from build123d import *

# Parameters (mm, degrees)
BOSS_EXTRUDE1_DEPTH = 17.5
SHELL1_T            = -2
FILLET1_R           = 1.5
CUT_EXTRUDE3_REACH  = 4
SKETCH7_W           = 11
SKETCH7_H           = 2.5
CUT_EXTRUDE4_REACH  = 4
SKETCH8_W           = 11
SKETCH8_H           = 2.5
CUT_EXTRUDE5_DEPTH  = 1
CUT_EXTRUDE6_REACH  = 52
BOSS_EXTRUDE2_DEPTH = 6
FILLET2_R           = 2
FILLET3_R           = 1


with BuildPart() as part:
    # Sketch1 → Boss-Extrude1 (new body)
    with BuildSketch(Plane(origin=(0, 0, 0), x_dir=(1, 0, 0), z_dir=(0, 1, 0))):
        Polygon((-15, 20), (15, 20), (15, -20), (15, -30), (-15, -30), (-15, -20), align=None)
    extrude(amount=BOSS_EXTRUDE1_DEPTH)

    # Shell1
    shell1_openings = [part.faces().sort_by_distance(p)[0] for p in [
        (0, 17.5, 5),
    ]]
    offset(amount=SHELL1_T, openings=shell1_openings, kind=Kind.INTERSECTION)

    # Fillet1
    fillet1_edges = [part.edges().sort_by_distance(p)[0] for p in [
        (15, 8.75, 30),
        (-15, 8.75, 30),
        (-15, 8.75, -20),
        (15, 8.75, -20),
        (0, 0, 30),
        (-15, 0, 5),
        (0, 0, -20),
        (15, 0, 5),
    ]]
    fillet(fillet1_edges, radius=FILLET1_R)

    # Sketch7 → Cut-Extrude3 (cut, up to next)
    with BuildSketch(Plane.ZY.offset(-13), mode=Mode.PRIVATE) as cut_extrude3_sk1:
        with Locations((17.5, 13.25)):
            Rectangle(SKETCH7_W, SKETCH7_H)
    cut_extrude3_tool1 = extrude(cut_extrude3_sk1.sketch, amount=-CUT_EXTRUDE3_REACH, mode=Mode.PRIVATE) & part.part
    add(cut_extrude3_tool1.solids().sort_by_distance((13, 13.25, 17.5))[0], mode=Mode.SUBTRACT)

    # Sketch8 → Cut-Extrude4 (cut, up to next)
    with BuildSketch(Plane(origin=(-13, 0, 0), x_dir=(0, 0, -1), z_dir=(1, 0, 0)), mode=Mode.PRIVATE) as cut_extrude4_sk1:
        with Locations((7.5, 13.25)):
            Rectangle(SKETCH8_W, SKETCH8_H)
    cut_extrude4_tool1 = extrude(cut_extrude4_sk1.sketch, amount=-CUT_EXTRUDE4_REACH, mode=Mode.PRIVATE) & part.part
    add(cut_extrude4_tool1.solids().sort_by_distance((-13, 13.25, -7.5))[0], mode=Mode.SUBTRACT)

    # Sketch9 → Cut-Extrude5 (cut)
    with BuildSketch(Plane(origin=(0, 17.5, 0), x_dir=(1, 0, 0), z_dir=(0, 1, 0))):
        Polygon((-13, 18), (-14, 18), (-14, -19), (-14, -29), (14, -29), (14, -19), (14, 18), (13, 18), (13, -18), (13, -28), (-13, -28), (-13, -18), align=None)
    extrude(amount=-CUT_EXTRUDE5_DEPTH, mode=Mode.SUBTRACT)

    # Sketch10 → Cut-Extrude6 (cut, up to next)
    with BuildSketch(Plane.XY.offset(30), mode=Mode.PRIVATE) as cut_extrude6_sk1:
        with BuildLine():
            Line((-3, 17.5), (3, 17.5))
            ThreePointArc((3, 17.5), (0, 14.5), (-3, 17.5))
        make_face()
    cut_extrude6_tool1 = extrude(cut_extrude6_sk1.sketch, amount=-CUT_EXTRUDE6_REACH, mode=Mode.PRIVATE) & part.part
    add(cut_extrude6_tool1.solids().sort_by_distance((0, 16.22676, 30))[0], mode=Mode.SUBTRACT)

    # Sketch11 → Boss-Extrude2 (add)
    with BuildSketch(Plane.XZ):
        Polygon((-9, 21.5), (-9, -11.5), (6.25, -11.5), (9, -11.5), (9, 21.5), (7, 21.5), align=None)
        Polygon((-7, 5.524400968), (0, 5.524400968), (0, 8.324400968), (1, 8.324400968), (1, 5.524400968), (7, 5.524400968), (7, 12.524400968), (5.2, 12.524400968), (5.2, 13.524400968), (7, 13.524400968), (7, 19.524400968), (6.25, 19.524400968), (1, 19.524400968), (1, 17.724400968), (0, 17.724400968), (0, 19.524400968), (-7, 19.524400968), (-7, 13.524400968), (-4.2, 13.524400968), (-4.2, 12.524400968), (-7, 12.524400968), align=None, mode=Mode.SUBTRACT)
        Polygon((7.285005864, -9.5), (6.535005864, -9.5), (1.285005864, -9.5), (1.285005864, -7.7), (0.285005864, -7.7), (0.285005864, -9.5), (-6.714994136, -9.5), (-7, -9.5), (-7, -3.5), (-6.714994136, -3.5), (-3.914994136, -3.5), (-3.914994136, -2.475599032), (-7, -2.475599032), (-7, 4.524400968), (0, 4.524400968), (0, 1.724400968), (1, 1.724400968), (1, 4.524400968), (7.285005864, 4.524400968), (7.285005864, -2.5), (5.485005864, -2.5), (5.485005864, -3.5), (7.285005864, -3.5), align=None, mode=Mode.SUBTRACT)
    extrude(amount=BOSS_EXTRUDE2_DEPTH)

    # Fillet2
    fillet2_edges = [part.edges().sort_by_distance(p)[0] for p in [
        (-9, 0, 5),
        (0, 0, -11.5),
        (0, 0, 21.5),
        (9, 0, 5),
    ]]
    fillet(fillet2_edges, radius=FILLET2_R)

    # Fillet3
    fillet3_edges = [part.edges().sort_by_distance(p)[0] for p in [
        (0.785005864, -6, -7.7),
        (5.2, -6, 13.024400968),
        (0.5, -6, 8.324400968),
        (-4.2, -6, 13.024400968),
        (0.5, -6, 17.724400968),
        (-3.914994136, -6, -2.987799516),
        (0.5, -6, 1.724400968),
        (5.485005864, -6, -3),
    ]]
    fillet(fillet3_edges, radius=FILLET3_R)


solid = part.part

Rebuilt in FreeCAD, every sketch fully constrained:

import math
import FreeCAD as App
import Part
import Sketcher
from FreeCAD import Vector
Q = App.Units.Quantity


def edges_at(feature, points):
    """Names of the edges that pass closest to the given points."""
    edges = feature.Shape.Edges
    near = lambda p: min(range(len(edges)), key=lambda i: edges[i].distToShape(Part.Vertex(*p))[0])
    return sorted({f"Edge{near(p) + 1}" for p in points})


def faces_at(feature, points):
    """Names of the faces that lie closest to the given points."""
    faces = feature.Shape.Faces
    near = lambda p: min(range(len(faces)), key=lambda i: faces[i].distToShape(Part.Vertex(*p))[0])
    return sorted({f"Face{near(p) + 1}" for p in points})


def add_polygon(sketch, points):
    """Adds a closed chain of lines whose ends are joined by coincident constraints."""
    first, n = sketch.GeometryCount, len(points)
    for a, b in zip(points, points[1:] + points[:1]):
        sketch.addGeometry(Part.LineSegment(App.Vector(*a, 0), App.Vector(*b, 0)), False)
    for i in range(n):
        sketch.addConstraint(Sketcher.Constraint("Coincident", first + i, 2, first + (i + 1) % n, 1))

doc = App.newDocument("Part")
body = doc.addObject("PartDesign::Body", "Body")

# Sketch on XZ plane
sketch1 = body.newObject("Sketcher::SketchObject", "Sketch")
sketch1.AttachmentSupport = (doc.getObject("XZ_Plane"), [""])
sketch1.MapMode = "FlatFace"
add_polygon(sketch1, [(15, -20), (-15, -20), (-15, 30), (15, 30)])  # lines 0-3
sketch1.addConstraint(Sketcher.Constraint("Horizontal", 0))
sketch1.addConstraint(Sketcher.Constraint("Vertical", 1))
sketch1.addConstraint(Sketcher.Constraint("Horizontal", 2))
sketch1.addConstraint(Sketcher.Constraint("Vertical", 3))
sketch1.addConstraint(Sketcher.Constraint("DistanceX", 0, 2, 0, 1, Q("30 mm")))
sketch1.addConstraint(Sketcher.Constraint("DistanceY", 1, 1, 1, 2, Q("50 mm")))
sketch1.addConstraint(Sketcher.Constraint("DistanceX", 0, 2, -1, 1, Q("15 mm")))
sketch1.addConstraint(Sketcher.Constraint("DistanceY", 0, 2, -1, 1, Q("20 mm")))
pad1 = body.newObject("PartDesign::Pad", "Pad")
pad1.Profile = sketch1
pad1.Length = 17.5
pad1.Reversed = True
doc.recompute()

thickness = body.newObject("PartDesign::Thickness", "Thickness")
thickness.Base = (pad1, faces_at(pad1, [(0, 17.5, 5)]))
thickness.Value = 2
thickness.Reversed = True
thickness.Join = "Intersection"
doc.recompute()

fillet = body.newObject("PartDesign::Fillet", "Fillet")
fillet.Base = (thickness, edges_at(thickness, [
    (15, 8.75, 30),
    (-15, 8.75, 30),
    (-15, 8.75, -20),
    (15, 8.75, -20),
    (0, 0, 30),
    (-15, 0, 5),
    (0, 0, -20),
    (15, 0, 5),
]))
fillet.Radius = 1.5

# Sketch on YZ plane
sketch2 = body.newObject("Sketcher::SketchObject", "Sketch001")
sketch2.AttachmentSupport = (doc.getObject("YZ_Plane"), [""])
sketch2.MapMode = "FlatFace"
sketch2.AttachmentOffset = App.Placement(Vector(0, 0, 13), App.Rotation())
add_polygon(sketch2, [(14.5, 12), (12, 12), (12, 23), (14.5, 23)])  # lines 0-3
sketch2.addConstraint(Sketcher.Constraint("Horizontal", 0))
sketch2.addConstraint(Sketcher.Constraint("Vertical", 1))
sketch2.addConstraint(Sketcher.Constraint("Horizontal", 2))
sketch2.addConstraint(Sketcher.Constraint("Vertical", 3))
sketch2.addConstraint(Sketcher.Constraint("DistanceY", 1, 1, 1, 2, Q("11 mm")))
sketch2.addConstraint(Sketcher.Constraint("DistanceX", 0, 2, 0, 1, Q("2.5 mm")))
sketch2.addConstraint(Sketcher.Constraint("DistanceX", -1, 1, 0, 2, Q("12 mm")))
sketch2.addConstraint(Sketcher.Constraint("DistanceY", -1, 1, 0, 2, Q("12 mm")))
pocket1 = body.newObject("PartDesign::Pocket", "Pocket")
pocket1.Profile = sketch2
pocket1.Type = "UpToFirst"
pocket1.Reversed = True

# Sketch on YZ plane
sketch3 = body.newObject("Sketcher::SketchObject", "Sketch002")
sketch3.AttachmentSupport = (doc.getObject("YZ_Plane"), [""])
sketch3.MapMode = "FlatFace"
sketch3.AttachmentOffset = App.Placement(Vector(0, 0, -13), App.Rotation())
add_polygon(sketch3, [(14.5, -2), (12, -2), (12, -13), (14.5, -13)])  # lines 0-3
sketch3.addConstraint(Sketcher.Constraint("Horizontal", 0))
sketch3.addConstraint(Sketcher.Constraint("Vertical", 1))
sketch3.addConstraint(Sketcher.Constraint("Horizontal", 2))
sketch3.addConstraint(Sketcher.Constraint("Vertical", 3))
sketch3.addConstraint(Sketcher.Constraint("DistanceY", 1, 2, 1, 1, Q("11 mm")))
sketch3.addConstraint(Sketcher.Constraint("DistanceX", 0, 2, 0, 1, Q("2.5 mm")))
sketch3.addConstraint(Sketcher.Constraint("DistanceX", -1, 1, 0, 2, Q("12 mm")))
sketch3.addConstraint(Sketcher.Constraint("DistanceY", 0, 2, -1, 1, Q("2 mm")))
pocket2 = body.newObject("PartDesign::Pocket", "Pocket001")
pocket2.Profile = sketch3
pocket2.Type = "UpToFirst"

# Sketch on XZ plane
sketch4 = body.newObject("Sketcher::SketchObject", "Sketch003")
sketch4.AttachmentSupport = (doc.getObject("XZ_Plane"), [""])
sketch4.MapMode = "FlatFace"
sketch4.AttachmentOffset = App.Placement(Vector(0, 0, -17.5), App.Rotation())
add_polygon(sketch4, [(-13, -18), (-14, -18), (-14, 29), (14, 29), (14, -18), (13, -18), (13, 28), (-13, 28)])  # lines 0-7
sketch4.addConstraint(Sketcher.Constraint("Horizontal", 0))
sketch4.addConstraint(Sketcher.Constraint("Vertical", 1))
sketch4.addConstraint(Sketcher.Constraint("Horizontal", 2))
sketch4.addConstraint(Sketcher.Constraint("Vertical", 3))
sketch4.addConstraint(Sketcher.Constraint("Horizontal", 4))
sketch4.addConstraint(Sketcher.Constraint("Vertical", 5))
sketch4.addConstraint(Sketcher.Constraint("Horizontal", 6))
sketch4.addConstraint(Sketcher.Constraint("Vertical", 7))
sketch4.addConstraint(Sketcher.Constraint("Symmetric", 0, 2, 3, 2, -2))
sketch4.addConstraint(Sketcher.Constraint("Equal", 0, 4))
sketch4.addConstraint(Sketcher.Constraint("DistanceX", 0, 2, 0, 1, Q("1 mm")))
sketch4.addConstraint(Sketcher.Constraint("DistanceX", 2, 1, 2, 2, Q("28 mm")))
sketch4.addConstraint(Sketcher.Constraint("DistanceY", 1, 1, 1, 2, Q("47 mm")))
sketch4.addConstraint(Sketcher.Constraint("DistanceY", 5, 1, 5, 2, Q("46 mm")))
sketch4.addConstraint(Sketcher.Constraint("DistanceY", 0, 2, -1, 1, Q("18 mm")))
pocket3 = body.newObject("PartDesign::Pocket", "Pocket002")
pocket3.Profile = sketch4
pocket3.Length = 1
pocket3.Reversed = True

# Sketch on XY plane
sketch5 = body.newObject("Sketcher::SketchObject", "Sketch004")
sketch5.AttachmentSupport = (doc.getObject("XY_Plane"), [""])
sketch5.MapMode = "FlatFace"
sketch5.AttachmentOffset = App.Placement(Vector(0, 0, 30), App.Rotation())
sketch5.addGeometry(Part.LineSegment(Vector(3, 17.5, 0), Vector(-3, 17.5, 0)), False)
sketch5.addGeometry(Part.ArcOfCircle(Part.Circle(Vector(0, 17.5, 0), Vector(0, 0, 1), 3), math.radians(180), math.radians(360)), False)
sketch5.addConstraint(Sketcher.Constraint("Coincident", 0, 1, 1, 2))
sketch5.addConstraint(Sketcher.Constraint("Coincident", 1, 1, 0, 2))
sketch5.addConstraint(Sketcher.Constraint("Horizontal", 0))
sketch5.addConstraint(Sketcher.Constraint("PointOnObject", 1, 3, -2))
sketch5.addConstraint(Sketcher.Constraint("Horizontal", 1, 3, 0, 1))
sketch5.addConstraint(Sketcher.Constraint("Radius", 1, Q("3 mm")))
sketch5.addConstraint(Sketcher.Constraint("DistanceY", -1, 1, 1, 3, Q("17.5 mm")))
pocket4 = body.newObject("PartDesign::Pocket", "Pocket003")
pocket4.Profile = sketch5
pocket4.Type = "UpToFirst"

# Sketch on XZ plane
sketch6 = body.newObject("Sketcher::SketchObject", "Sketch005")
sketch6.AttachmentSupport = (doc.getObject("XZ_Plane"), [""])
sketch6.MapMode = "FlatFace"
add_polygon(sketch6, [(-9, 21.5), (-9, -11.5), (9, -11.5), (9, 21.5)])  # lines 0-3
add_polygon(sketch6, [(7.285006, -3.5), (7.285006, -9.5), (1.285006, -9.5), (1.285006, -7.7), (0.285006, -7.7), (0.285006, -9.5), (-7, -9.5), (-7, -3.5), (-3.914994, -3.5), (-3.914994, -2.475599), (-7, -2.475599), (-7, 4.524401), (0, 4.524401), (0, 1.724401), (1, 1.724401), (1, 4.524401), (7.285006, 4.524401), (7.285006, -2.5), (5.485006, -2.5), (5.485006, -3.5)])  # lines 4-23
add_polygon(sketch6, [(0, 5.524401), (-7, 5.524401), (-7, 12.524401), (-4.2, 12.524401), (-4.2, 13.524401), (-7, 13.524401), (-7, 19.524401), (0, 19.524401), (0, 17.724401), (1, 17.724401), (1, 19.524401), (7, 19.524401), (7, 13.524401), (5.2, 13.524401), (5.2, 12.524401), (7, 12.524401), (7, 5.524401), (1, 5.524401), (1, 8.324401), (0, 8.324401)])  # lines 24-43
sketch6.addConstraint(Sketcher.Constraint("Vertical", 0))
sketch6.addConstraint(Sketcher.Constraint("Horizontal", 1))
sketch6.addConstraint(Sketcher.Constraint("Vertical", 2))
sketch6.addConstraint(Sketcher.Constraint("Horizontal", 3))
sketch6.addConstraint(Sketcher.Constraint("Vertical", 4))
sketch6.addConstraint(Sketcher.Constraint("Horizontal", 5))
sketch6.addConstraint(Sketcher.Constraint("Vertical", 6))
sketch6.addConstraint(Sketcher.Constraint("Horizontal", 7))
sketch6.addConstraint(Sketcher.Constraint("Vertical", 8))
sketch6.addConstraint(Sketcher.Constraint("Horizontal", 9))
sketch6.addConstraint(Sketcher.Constraint("Vertical", 10))
sketch6.addConstraint(Sketcher.Constraint("Horizontal", 11))
sketch6.addConstraint(Sketcher.Constraint("Vertical", 12))
sketch6.addConstraint(Sketcher.Constraint("Horizontal", 13))
sketch6.addConstraint(Sketcher.Constraint("Vertical", 14))
sketch6.addConstraint(Sketcher.Constraint("Horizontal", 15))
sketch6.addConstraint(Sketcher.Constraint("Vertical", 16))
sketch6.addConstraint(Sketcher.Constraint("Horizontal", 17))
sketch6.addConstraint(Sketcher.Constraint("Vertical", 18))
sketch6.addConstraint(Sketcher.Constraint("Horizontal", 19))
sketch6.addConstraint(Sketcher.Constraint("Vertical", 20))
sketch6.addConstraint(Sketcher.Constraint("Horizontal", 21))
sketch6.addConstraint(Sketcher.Constraint("Vertical", 22))
sketch6.addConstraint(Sketcher.Constraint("Horizontal", 23))
sketch6.addConstraint(Sketcher.Constraint("Horizontal", 24))
sketch6.addConstraint(Sketcher.Constraint("Vertical", 25))
sketch6.addConstraint(Sketcher.Constraint("Horizontal", 26))
sketch6.addConstraint(Sketcher.Constraint("Vertical", 27))
sketch6.addConstraint(Sketcher.Constraint("Horizontal", 28))
sketch6.addConstraint(Sketcher.Constraint("Vertical", 29))
sketch6.addConstraint(Sketcher.Constraint("Horizontal", 30))
sketch6.addConstraint(Sketcher.Constraint("Vertical", 31))
sketch6.addConstraint(Sketcher.Constraint("Horizontal", 32))
sketch6.addConstraint(Sketcher.Constraint("Vertical", 33))
sketch6.addConstraint(Sketcher.Constraint("Horizontal", 34))
sketch6.addConstraint(Sketcher.Constraint("Vertical", 35))
sketch6.addConstraint(Sketcher.Constraint("Horizontal", 36))
sketch6.addConstraint(Sketcher.Constraint("Vertical", 37))
sketch6.addConstraint(Sketcher.Constraint("Horizontal", 38))
sketch6.addConstraint(Sketcher.Constraint("Vertical", 39))
sketch6.addConstraint(Sketcher.Constraint("Horizontal", 40))
sketch6.addConstraint(Sketcher.Constraint("Vertical", 41))
sketch6.addConstraint(Sketcher.Constraint("Horizontal", 42))
sketch6.addConstraint(Sketcher.Constraint("Vertical", 43))
sketch6.addConstraint(Sketcher.Constraint("Symmetric", 29, 2, 34, 2, -2))
sketch6.addConstraint(Sketcher.Constraint("Symmetric", 25, 2, 38, 2, -2))
sketch6.addConstraint(Sketcher.Constraint("PointOnObject", 15, 2, -2))
sketch6.addConstraint(Sketcher.Constraint("PointOnObject", 30, 2, -2))
sketch6.addConstraint(Sketcher.Constraint("PointOnObject", 42, 2, -2))
sketch6.addConstraint(Sketcher.Constraint("Horizontal", 5, 2, 8, 2))
sketch6.addConstraint(Sketcher.Constraint("Horizontal", 15, 2, 18, 2))
sketch6.addConstraint(Sketcher.Constraint("Horizontal", 11, 2, 22, 2))
sketch6.addConstraint(Sketcher.Constraint("Horizontal", 28, 2, 35, 2))
sketch6.addConstraint(Sketcher.Constraint("Horizontal", 24, 2, 39, 2))
sketch6.addConstraint(Sketcher.Constraint("Vertical", 10, 2, 13, 2))
sketch6.addConstraint(Sketcher.Constraint("Vertical", 4, 2, 19, 2))
sketch6.addConstraint(Sketcher.Constraint("Vertical", 14, 2, 24, 2))
sketch6.addConstraint(Sketcher.Constraint("Vertical", 25, 2, 28, 2))
sketch6.addConstraint(Sketcher.Constraint("Vertical", 18, 2, 32, 2))
sketch6.addConstraint(Sketcher.Constraint("Vertical", 33, 2, 40, 2))
sketch6.addConstraint(Sketcher.Constraint("Equal", 7, 17))
sketch6.addConstraint(Sketcher.Constraint("Equal", 5, 34))
sketch6.addConstraint(Sketcher.Constraint("Equal", 23, 36))
sketch6.addConstraint(Sketcher.Constraint("Equal", 40, 4))
sketch6.addConstraint(Sketcher.Constraint("Equal", 38, 6))
sketch6.addConstraint(Sketcher.Constraint("Equal", 30, 14))
sketch6.addConstraint(Sketcher.Constraint("Equal", 28, 16))
sketch6.addConstraint(Sketcher.Constraint("Equal", 42, 22))
sketch6.addConstraint(Sketcher.Constraint("Equal", 14, 25))
sketch6.addConstraint(Sketcher.Constraint("Equal", 22, 27))
sketch6.addConstraint(Sketcher.Constraint("Equal", 10, 29))
sketch6.addConstraint(Sketcher.Constraint("Equal", 8, 31))
sketch6.addConstraint(Sketcher.Constraint("Equal", 18, 41))
sketch6.addConstraint(Sketcher.Constraint("DistanceX", 1, 1, 1, 2, Q("18 mm")))
sketch6.addConstraint(Sketcher.Constraint("DistanceX", 5, 2, 5, 1, Q("6 mm")))
sketch6.addConstraint(Sketcher.Constraint("DistanceX", 7, 2, 7, 1, Q("1 mm")))
sketch6.addConstraint(Sketcher.Constraint("DistanceY", 0, 2, 0, 1, Q("33 mm")))
sketch6.addConstraint(Sketcher.Constraint("DistanceX", 21, 2, 21, 1, Q("1.8 mm")))
sketch6.addConstraint(Sketcher.Constraint("DistanceX", 26, 1, 26, 2, Q("2.8 mm")))
sketch6.addConstraint(Sketcher.Constraint("DistanceX", 0, 2, -1, 1, Q("9 mm")))
sketch6.addConstraint(Sketcher.Constraint("DistanceY", 1, 2, 4, 2, Q("2 mm")))
sketch6.addConstraint(Sketcher.Constraint("DistanceY", 14, 2, 24, 2, Q("1 mm")))
sketch6.addConstraint(Sketcher.Constraint("DistanceY", 0, 2, -1, 1, Q("11.5 mm")))
sketch6.addConstraint(Sketcher.Constraint("DistanceX", 11, 2, 7, 2, Q("4.2 mm")))
sketch6.addConstraint(Sketcher.Constraint("DistanceY", 12, 1, 12, 2, Q("1.024401 mm")))
sketch6.addConstraint(Sketcher.Constraint("DistanceX", 9, 2, 9, 1, Q("7.285006 mm")))
pad2 = body.newObject("PartDesign::Pad", "Pad001")
pad2.Profile = sketch6
pad2.Length = 6
doc.recompute()

fillet2 = body.newObject("PartDesign::Fillet", "Fillet001")
fillet2.Base = (pad2, edges_at(pad2, [
    (-9, 0, 5),
    (0, 0, -11.5),
    (0, 0, 21.5),
    (9, 0, 5),
]))
fillet2.Radius = 2
doc.recompute()

fillet3 = body.newObject("PartDesign::Fillet", "Fillet002")
fillet3.Base = (fillet2, edges_at(fillet2, [
    (0.785, -6, -7.7),
    (5.2, -6, 13.024),
    (0.5, -6, 8.324),
    (-4.2, -6, 13.024),
    (0.5, -6, 17.724),
    (-3.915, -6, -2.988),
    (0.5, -6, 1.724),
    (5.485, -6, -3),
]))
fillet3.Radius = 1

doc.recompute()
